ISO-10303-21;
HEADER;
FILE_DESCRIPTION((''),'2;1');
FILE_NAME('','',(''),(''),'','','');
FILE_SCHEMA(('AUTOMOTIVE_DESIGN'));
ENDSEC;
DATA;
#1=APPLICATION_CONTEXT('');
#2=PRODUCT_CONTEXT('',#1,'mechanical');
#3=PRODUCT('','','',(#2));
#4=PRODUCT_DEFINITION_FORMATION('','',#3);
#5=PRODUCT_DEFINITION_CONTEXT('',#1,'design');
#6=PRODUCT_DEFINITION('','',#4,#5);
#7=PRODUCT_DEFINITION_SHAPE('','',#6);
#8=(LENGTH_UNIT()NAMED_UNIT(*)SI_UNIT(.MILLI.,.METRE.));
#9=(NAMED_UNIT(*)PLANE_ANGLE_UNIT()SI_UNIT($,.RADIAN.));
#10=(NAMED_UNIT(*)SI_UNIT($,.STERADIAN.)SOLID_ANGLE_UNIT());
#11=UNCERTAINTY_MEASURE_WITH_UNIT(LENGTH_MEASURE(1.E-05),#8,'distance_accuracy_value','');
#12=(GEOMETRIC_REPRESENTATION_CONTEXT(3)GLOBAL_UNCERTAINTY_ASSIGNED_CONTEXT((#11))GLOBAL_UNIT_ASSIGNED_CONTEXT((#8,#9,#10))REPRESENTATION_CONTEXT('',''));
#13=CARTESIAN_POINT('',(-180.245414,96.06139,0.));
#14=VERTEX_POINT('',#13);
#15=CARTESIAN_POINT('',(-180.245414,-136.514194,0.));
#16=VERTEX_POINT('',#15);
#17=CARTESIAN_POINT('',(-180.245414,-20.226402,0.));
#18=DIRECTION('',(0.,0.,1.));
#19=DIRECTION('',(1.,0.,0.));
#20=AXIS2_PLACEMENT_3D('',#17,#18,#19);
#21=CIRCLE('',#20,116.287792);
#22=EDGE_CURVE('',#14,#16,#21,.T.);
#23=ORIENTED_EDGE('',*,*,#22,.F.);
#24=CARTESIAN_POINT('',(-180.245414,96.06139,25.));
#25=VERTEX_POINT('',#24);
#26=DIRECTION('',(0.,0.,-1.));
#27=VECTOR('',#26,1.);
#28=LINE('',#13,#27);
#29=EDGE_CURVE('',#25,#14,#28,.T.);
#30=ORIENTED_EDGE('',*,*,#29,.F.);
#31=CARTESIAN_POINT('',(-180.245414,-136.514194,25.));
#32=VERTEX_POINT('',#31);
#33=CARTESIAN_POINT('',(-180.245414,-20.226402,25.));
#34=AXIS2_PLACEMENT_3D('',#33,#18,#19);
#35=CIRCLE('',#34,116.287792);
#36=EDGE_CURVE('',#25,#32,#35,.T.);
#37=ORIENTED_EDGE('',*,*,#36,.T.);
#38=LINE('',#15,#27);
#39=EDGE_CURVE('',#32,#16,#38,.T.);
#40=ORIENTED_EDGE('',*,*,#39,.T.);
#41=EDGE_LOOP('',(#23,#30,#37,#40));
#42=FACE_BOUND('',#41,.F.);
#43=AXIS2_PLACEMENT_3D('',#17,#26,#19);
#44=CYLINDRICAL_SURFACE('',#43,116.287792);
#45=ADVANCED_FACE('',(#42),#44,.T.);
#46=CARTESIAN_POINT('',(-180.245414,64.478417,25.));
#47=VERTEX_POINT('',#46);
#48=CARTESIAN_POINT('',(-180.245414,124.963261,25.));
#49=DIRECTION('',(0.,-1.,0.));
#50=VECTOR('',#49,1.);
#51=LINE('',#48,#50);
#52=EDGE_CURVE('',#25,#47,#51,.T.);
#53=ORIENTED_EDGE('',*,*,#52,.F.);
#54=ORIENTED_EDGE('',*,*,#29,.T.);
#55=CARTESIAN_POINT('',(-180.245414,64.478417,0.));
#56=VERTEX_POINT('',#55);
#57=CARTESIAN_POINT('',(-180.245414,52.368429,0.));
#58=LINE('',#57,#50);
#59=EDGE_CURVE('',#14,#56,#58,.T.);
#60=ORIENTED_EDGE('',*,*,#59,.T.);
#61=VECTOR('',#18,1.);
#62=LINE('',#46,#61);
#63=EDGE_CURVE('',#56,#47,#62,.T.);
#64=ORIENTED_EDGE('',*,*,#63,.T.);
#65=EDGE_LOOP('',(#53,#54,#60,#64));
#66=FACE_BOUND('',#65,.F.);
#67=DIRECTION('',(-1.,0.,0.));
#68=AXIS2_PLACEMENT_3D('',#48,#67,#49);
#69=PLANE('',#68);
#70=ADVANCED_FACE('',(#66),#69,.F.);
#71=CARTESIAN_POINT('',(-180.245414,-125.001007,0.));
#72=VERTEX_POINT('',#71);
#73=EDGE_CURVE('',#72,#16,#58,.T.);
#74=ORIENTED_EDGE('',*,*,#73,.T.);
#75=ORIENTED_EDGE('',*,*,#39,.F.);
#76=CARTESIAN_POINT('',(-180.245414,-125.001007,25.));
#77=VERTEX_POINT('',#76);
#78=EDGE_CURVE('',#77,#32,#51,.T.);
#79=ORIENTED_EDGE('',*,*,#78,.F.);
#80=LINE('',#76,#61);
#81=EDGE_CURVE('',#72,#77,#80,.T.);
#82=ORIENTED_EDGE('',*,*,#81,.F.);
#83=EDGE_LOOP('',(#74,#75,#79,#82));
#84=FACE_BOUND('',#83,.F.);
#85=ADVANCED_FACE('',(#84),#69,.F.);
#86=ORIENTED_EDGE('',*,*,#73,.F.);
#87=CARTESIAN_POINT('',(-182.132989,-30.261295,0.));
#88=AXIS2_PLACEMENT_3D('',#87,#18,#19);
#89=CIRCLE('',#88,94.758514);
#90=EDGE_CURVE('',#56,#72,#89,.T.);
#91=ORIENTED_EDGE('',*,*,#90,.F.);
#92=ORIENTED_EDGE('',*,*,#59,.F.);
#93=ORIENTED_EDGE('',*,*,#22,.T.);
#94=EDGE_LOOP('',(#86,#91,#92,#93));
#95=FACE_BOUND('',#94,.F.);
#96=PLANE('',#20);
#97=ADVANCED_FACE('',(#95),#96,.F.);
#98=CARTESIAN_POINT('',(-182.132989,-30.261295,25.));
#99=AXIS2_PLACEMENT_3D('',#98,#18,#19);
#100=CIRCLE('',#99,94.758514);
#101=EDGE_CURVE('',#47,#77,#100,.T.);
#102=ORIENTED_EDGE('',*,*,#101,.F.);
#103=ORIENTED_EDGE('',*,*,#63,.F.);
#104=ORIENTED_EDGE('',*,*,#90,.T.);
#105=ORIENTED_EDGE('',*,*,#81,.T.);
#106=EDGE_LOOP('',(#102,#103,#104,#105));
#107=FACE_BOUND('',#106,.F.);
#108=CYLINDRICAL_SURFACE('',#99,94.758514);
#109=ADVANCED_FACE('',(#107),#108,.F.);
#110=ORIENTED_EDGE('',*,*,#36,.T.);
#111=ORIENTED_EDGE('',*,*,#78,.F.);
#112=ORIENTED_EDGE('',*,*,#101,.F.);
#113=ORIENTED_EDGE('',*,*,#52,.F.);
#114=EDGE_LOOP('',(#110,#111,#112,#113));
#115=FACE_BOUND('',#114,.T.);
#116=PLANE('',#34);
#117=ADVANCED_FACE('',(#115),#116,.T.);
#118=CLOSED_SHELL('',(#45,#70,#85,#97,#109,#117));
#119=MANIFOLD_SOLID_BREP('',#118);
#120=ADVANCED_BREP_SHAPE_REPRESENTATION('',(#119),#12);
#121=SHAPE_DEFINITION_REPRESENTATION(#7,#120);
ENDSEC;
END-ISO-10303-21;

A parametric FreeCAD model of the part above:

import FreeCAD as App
import Part
import Sketcher

V = App.Vector

doc = App.newDocument("Part")
body = doc.addObject("PartDesign::Body", "Body")

# Sketch on XY plane
sketch1 = body.newObject("Sketcher::SketchObject", "Sketch")
sketch1.AttachmentSupport = (doc.getObject("XY_Plane"), [""])
sketch1.MapMode = "FlatFace"
sketch1.addGeometry(Part.Circle(V(-180, -20, 0), V(0, 0, 1), 116), False)
sketch1.addConstraint([
    Sketcher.Constraint("Diameter", 0, 232.575584),
    Sketcher.Constraint("DistanceY", 0, 3, -1, 1, 20.226402),
    Sketcher.Constraint("DistanceX", 0, 3, -1, 1, 180.245414),
])
pad1 = body.newObject("PartDesign::Pad", "Pad")
pad1.Profile = sketch1
pad1.Length = 25

# Sketch on XY plane
sketch2 = body.newObject("Sketcher::SketchObject", "Sketch001")
sketch2.AttachmentSupport = (doc.getObject("XY_Plane"), [""])
sketch2.MapMode = "FlatFace"
sketch2.AttachmentOffset = App.Placement(V(0, 0, 25), App.Rotation())
sketch2.addGeometry(Part.Circle(V(-182, -30, 0), V(0, 0, 1), 95), False)
sketch2.addConstraint([
    Sketcher.Constraint("Diameter", 0, 189.517028),
    Sketcher.Constraint("DistanceX", 0, 3, -1, 1, 182.132989),
    Sketcher.Constraint("DistanceY", 0, 3, -1, 1, 30.261295),
])
pocket1 = body.newObject("PartDesign::Pocket", "Pocket")
pocket1.Profile = sketch2
pocket1.Type = "ThroughAll"

# Sketch on XY plane
sketch3 = body.newObject("Sketcher::SketchObject", "Sketch002")
sketch3.AttachmentSupport = (doc.getObject("XY_Plane"), [""])
sketch3.MapMode = "FlatFace"
sketch3.AttachmentOffset = App.Placement(V(0, 0, 25), App.Rotation())
sketch3.addGeometry([
    Part.LineSegment(V(-180, 125, 0), V(-180, -167, 0)),
    Part.LineSegment(V(-180, -167, 0), V(-42, -167, 0)),
    Part.LineSegment(V(-42, -167, 0), V(-42, 125, 0)),
    Part.LineSegment(V(-42, 125, 0), V(-180, 125, 0)),
], False)
sketch3.addConstraint([
    Sketcher.Constraint("Coincident", 0, 2, 1, 1),
    Sketcher.Constraint("Coincident", 1, 2, 2, 1),
    Sketcher.Constraint("Coincident", 2, 2, 3, 1),
    Sketcher.Constraint("Coincident", 3, 2, 0, 1),
    Sketcher.Constraint("Vertical", 0),
    Sketcher.Constraint("Horizontal", 1),
    Sketcher.Constraint("Vertical", 2),
    Sketcher.Constraint("Horizontal", 3),
    Sketcher.Constraint("DistanceX", 1, 1, 1, 2, 138.32682),
    Sketcher.Constraint("DistanceY", 0, 2, 0, 1, 292.427279),
    Sketcher.Constraint("DistanceY", 0, 2, -1, 1, 167.464018),
    Sketcher.Constraint("DistanceX", 0, 2, -1, 1, 180.245414),
])
pocket2 = body.newObject("PartDesign::Pocket", "Pocket001")
pocket2.Profile = sketch3
pocket2.Type = "ThroughAll"

doc.recompute()
